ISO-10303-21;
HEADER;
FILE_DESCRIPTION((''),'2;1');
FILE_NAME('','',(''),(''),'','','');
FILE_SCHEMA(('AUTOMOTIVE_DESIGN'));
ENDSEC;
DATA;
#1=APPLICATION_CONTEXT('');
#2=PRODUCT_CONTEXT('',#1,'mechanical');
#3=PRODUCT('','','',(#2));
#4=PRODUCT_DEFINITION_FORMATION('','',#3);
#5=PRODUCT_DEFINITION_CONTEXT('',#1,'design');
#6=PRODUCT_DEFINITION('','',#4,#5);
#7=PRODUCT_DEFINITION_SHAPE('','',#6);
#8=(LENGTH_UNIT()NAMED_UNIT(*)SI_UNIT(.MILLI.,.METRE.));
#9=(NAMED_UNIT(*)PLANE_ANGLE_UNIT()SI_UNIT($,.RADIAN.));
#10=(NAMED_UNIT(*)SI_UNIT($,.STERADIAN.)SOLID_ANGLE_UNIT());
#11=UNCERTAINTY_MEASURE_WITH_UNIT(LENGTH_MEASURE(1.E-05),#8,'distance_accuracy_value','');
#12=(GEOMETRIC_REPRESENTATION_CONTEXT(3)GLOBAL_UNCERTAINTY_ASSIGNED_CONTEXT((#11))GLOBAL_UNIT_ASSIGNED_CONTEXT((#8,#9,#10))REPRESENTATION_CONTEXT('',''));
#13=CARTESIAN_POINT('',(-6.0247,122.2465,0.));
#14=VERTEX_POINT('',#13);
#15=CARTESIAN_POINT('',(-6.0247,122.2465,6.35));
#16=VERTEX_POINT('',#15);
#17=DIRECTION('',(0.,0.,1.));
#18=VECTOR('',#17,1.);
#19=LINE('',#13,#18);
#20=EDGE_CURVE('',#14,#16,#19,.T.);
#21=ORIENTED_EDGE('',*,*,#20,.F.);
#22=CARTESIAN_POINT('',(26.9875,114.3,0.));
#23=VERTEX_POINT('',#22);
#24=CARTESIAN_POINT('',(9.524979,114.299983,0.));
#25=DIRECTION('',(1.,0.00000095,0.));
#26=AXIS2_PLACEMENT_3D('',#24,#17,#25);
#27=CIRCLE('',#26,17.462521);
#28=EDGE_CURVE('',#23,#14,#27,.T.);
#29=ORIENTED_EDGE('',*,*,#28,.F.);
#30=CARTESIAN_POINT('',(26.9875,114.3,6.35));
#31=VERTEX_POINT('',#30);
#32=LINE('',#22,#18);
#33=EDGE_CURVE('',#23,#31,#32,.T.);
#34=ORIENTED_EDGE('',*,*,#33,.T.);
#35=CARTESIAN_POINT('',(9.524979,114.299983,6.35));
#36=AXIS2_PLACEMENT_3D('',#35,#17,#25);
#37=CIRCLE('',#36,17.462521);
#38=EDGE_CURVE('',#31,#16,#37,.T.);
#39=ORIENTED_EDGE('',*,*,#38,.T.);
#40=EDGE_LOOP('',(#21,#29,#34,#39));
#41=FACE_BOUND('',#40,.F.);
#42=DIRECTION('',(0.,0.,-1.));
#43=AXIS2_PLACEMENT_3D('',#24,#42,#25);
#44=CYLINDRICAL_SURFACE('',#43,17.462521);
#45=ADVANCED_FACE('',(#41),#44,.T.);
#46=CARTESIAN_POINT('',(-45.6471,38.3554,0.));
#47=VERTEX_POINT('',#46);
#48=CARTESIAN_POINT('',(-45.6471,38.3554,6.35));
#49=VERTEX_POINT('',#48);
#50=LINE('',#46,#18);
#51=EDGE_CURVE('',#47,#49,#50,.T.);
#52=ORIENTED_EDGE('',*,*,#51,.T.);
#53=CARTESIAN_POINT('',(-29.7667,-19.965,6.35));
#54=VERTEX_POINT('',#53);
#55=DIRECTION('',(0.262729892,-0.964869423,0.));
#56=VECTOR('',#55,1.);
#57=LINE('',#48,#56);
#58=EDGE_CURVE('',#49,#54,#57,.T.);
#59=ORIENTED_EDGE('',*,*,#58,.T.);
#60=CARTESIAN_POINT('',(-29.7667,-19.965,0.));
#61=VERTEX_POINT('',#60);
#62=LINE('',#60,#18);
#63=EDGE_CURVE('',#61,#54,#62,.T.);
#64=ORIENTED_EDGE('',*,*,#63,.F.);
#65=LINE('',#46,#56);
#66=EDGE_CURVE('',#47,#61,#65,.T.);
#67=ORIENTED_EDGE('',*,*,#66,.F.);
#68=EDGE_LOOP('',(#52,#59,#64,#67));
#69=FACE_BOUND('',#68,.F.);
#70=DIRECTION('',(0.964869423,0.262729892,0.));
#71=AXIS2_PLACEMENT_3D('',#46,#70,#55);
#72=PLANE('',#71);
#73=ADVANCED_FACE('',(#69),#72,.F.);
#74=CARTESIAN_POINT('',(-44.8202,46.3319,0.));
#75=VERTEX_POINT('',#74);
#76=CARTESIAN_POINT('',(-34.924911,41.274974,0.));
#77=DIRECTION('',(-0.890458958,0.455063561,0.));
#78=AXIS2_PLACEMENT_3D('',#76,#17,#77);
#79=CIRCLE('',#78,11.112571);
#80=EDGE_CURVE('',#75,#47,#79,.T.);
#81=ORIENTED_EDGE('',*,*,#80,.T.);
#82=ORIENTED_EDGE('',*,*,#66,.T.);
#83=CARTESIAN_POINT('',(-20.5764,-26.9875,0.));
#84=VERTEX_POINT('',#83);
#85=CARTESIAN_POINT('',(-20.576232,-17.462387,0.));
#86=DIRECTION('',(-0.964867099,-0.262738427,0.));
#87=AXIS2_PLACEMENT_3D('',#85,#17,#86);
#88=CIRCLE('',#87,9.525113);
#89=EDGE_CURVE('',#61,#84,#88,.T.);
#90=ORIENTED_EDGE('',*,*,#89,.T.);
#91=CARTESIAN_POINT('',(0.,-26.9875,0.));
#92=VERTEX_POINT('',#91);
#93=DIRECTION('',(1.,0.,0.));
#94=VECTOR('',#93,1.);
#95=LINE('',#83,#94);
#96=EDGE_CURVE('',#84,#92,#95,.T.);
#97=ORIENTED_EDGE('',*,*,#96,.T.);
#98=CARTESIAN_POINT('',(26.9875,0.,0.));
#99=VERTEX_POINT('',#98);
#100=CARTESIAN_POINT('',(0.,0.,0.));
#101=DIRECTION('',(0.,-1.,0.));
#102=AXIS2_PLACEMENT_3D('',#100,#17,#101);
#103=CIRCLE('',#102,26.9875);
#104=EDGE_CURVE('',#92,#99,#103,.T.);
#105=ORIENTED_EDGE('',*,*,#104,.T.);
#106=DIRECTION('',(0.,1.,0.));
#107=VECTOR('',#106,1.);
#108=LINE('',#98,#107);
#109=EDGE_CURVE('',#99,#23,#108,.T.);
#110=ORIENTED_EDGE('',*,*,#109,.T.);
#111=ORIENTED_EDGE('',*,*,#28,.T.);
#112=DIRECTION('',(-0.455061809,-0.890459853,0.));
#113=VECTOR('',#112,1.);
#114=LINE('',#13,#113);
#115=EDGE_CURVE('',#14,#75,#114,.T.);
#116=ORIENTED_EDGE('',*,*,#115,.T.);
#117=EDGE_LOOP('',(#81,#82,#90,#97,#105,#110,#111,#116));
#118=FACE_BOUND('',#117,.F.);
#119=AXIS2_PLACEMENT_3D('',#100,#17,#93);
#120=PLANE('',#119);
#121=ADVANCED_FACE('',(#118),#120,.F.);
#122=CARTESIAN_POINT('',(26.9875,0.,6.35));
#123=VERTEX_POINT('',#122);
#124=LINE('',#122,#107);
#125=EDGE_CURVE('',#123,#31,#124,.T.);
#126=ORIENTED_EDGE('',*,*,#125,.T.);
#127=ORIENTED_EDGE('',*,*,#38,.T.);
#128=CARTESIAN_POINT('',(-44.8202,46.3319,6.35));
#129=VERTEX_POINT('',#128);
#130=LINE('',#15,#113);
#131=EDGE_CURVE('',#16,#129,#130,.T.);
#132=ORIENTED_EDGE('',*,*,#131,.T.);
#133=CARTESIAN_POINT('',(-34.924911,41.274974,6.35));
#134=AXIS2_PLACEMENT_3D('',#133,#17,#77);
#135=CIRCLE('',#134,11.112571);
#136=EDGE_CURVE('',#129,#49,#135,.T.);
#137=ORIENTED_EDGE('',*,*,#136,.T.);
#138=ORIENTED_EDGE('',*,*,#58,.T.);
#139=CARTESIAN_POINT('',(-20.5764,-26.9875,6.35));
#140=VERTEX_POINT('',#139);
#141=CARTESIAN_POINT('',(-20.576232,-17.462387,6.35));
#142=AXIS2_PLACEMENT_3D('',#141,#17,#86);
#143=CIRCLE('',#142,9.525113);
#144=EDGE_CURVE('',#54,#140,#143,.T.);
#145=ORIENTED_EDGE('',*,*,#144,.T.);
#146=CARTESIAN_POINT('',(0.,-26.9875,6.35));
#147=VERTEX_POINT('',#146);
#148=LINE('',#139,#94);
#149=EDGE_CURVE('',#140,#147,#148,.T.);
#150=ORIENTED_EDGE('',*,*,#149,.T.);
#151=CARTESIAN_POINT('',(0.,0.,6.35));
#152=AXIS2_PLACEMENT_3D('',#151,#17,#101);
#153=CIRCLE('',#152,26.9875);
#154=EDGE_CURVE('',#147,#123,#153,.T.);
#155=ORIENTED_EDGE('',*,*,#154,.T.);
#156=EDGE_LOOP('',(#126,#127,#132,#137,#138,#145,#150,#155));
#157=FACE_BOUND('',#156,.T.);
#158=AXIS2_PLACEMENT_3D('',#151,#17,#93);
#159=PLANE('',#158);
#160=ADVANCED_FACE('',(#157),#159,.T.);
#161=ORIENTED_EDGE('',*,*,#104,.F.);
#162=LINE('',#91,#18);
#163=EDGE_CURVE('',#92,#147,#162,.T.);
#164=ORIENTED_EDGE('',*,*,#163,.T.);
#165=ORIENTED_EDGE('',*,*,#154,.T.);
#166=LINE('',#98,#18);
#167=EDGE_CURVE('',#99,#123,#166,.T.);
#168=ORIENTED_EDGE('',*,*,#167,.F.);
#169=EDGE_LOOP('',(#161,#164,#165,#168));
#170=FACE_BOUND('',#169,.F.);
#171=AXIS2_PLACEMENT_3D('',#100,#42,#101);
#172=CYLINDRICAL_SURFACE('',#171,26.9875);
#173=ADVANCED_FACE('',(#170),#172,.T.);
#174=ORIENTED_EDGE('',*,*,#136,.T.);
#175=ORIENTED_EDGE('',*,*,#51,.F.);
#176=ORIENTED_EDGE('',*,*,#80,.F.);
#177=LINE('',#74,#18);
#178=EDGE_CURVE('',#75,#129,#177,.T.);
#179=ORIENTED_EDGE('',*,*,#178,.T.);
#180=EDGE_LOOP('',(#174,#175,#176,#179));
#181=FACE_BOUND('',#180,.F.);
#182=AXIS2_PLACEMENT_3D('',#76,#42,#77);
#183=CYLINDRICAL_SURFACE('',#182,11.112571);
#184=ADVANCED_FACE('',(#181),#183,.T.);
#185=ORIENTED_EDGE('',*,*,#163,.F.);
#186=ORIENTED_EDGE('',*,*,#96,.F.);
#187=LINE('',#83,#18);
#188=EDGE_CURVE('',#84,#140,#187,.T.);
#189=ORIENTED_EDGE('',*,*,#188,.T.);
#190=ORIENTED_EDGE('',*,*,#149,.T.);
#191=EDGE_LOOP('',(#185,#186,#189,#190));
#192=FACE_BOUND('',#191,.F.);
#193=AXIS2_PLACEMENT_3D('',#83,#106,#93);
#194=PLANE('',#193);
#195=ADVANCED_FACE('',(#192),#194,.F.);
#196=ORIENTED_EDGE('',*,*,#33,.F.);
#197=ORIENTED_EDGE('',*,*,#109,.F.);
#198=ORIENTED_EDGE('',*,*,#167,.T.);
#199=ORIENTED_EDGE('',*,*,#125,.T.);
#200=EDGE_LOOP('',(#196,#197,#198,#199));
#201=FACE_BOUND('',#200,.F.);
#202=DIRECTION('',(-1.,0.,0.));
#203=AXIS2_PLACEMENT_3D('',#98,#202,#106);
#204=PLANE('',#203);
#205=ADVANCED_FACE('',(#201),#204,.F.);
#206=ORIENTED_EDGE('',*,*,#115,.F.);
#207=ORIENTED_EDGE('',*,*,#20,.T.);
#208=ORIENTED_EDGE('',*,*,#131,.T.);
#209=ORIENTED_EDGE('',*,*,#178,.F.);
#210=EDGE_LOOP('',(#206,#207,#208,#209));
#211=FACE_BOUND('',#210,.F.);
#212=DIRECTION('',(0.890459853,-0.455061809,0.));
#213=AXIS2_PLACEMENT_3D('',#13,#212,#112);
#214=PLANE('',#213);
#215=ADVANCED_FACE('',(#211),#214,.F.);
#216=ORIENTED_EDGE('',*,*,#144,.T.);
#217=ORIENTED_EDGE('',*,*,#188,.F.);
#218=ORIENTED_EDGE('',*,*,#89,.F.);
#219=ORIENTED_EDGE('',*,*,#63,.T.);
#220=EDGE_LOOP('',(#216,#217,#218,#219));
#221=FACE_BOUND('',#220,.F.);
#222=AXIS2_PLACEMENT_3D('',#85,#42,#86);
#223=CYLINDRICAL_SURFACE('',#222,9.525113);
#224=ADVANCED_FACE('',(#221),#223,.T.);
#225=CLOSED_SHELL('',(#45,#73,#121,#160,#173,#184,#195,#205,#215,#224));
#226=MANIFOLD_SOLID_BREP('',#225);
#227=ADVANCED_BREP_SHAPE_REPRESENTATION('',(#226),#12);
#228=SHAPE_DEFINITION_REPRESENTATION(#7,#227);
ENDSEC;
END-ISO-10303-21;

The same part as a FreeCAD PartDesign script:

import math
import FreeCAD as App
import Part
import Sketcher
Q = App.Units.Quantity

doc = App.newDocument("Part")
params = doc.addObject("Spreadsheet::Sheet", "Params")
for row, (alias, value) in enumerate([
    ("sketch1_height", "4.5 in"),
    ("sketch1_radius", "0.375 in"),
    ("sketch1_radius2", "0.6875 in"),
    ("sketch1_radius3", "0.4375 in"),
    ("pad1_length", "0.25 in"),
], start=1):
    params.set(f"A{row}", alias)
    params.set(f"B{row}", "=" + value)
    params.setAlias(f"B{row}", alias)

body = doc.addObject("PartDesign::Body", "Body")

# Sketch on XY plane
sketch1 = doc.addObject("Sketcher::SketchObject", "Sketch")
body.addObject(sketch1)
sketch1.AttachmentSupport = (doc.XY_Plane, [""])
sketch1.MapMode = "FlatFace"
sketch1.addGeometry([
    Part.LineSegment(App.Vector(-45.6471, 38.3554, 0), App.Vector(-29.7667, -19.965, 0)),  # 0
    Part.ArcOfCircle(Part.Circle(App.Vector(-20.5764, -17.4625, 0), App.Vector(0, 0, 1), 9.524921), math.radians(-164.767778), math.radians(-90)),  # 1
    Part.LineSegment(App.Vector(-20.5764, -26.9875, 0), App.Vector(0, -26.9875, 0)),  # 2
    Part.ArcOfCircle(Part.Circle(App.Vector(0, 0, 0), App.Vector(0, 0, 1), 26.9875), math.radians(-90), math.radians(0)),  # 3
    Part.LineSegment(App.Vector(26.9875, 0, 0), App.Vector(26.9875, 114.3, 0)),  # 4
    Part.ArcOfCircle(Part.Circle(App.Vector(9.525, 114.3, 0), App.Vector(0, 0, 1), 17.4625), math.radians(0), math.radians(152.931205)),  # 5
    Part.LineSegment(App.Vector(-6.0247, 122.2465, 0), App.Vector(-44.8202, 46.3319, 0)),  # 6
    Part.ArcOfCircle(Part.Circle(App.Vector(-34.925, 41.275, 0), App.Vector(0, 0, 1), 11.11248), math.radians(152.930889), math.radians(195.232192)),  # 7
], False)
sketch1.addConstraint([
    Sketcher.Constraint("Tangent", 0, 2, 1, 1),
    Sketcher.Constraint("Tangent", 1, 2, 2, 1),
    Sketcher.Constraint("Tangent", 2, 2, 3, 1),
    Sketcher.Constraint("Tangent", 3, 2, 4, 1),
    Sketcher.Constraint("Tangent", 4, 2, 5, 1),
    Sketcher.Constraint("Tangent", 5, 2, 6, 1),
    Sketcher.Constraint("Tangent", 6, 2, 7, 1),
    Sketcher.Constraint("Tangent", 7, 2, 0, 1),
    Sketcher.Constraint("Horizontal", 2),
    Sketcher.Constraint("Vertical", 4),
    Sketcher.Constraint("Coincident", 3, 3, -1, 1),
    Sketcher.Constraint("DistanceY", 4, 1, 4, 2, Q("4.5 in")),
    Sketcher.Constraint("Radius", 1, Q("0.375 in")),
    Sketcher.Constraint("Radius", 5, Q("0.6875 in")),
    Sketcher.Constraint("DistanceX", 7, 3, 5, 3, Q("1.75 in")),
    Sketcher.Constraint("DistanceX", -1, 1, 5, 3, Q("0.375 in")),
    Sketcher.Constraint("DistanceY", -1, 1, 7, 3, Q("1.625 in")),
    Sketcher.Constraint("Radius", 7, Q("0.4375 in")),
    Sketcher.Constraint("DistanceX", 2, 1, 2, 2, Q("0.8101 in")),
])
sketch1.setExpression("Constraints[11]", "Params.sketch1_height")
sketch1.setExpression("Constraints[12]", "Params.sketch1_radius")
sketch1.setExpression("Constraints[13]", "Params.sketch1_radius2")
sketch1.setExpression("Constraints[17]", "Params.sketch1_radius3")
pad1 = doc.addObject("PartDesign::Pad", "Pad")
body.addObject(pad1)
pad1.Profile = sketch1
pad1.setExpression("Length", "Params.pad1_length")

doc.recompute()
